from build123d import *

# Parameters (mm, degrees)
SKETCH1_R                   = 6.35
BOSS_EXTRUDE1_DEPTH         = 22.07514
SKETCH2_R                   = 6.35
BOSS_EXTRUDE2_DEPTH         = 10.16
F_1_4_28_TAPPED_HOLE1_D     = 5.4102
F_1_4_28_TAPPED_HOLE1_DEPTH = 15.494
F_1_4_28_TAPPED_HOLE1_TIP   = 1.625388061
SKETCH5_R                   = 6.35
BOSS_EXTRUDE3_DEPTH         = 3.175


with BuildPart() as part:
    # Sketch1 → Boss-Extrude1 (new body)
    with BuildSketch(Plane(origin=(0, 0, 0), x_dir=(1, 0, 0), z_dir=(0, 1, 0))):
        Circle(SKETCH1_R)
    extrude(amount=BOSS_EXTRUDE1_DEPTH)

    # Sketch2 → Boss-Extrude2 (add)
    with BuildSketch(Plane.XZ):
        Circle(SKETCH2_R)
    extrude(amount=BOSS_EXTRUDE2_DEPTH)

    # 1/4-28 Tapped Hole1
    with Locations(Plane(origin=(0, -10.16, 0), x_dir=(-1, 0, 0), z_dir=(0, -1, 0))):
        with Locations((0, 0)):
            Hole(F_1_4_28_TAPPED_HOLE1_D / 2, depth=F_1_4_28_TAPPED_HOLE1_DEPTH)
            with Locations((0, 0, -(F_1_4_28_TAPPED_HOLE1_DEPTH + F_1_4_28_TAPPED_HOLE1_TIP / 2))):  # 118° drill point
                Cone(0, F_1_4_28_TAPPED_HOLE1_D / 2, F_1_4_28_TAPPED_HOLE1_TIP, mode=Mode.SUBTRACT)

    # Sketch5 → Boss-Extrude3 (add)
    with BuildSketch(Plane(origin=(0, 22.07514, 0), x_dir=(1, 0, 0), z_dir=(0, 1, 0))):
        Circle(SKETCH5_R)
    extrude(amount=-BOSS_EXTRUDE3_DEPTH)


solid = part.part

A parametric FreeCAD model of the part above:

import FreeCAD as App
import Part
import Sketcher

V = App.Vector
Q = App.Units.Quantity

doc = App.newDocument("Part")
body = doc.addObject("PartDesign::Body", "Body")

# Sketch on XZ plane
sketch1 = body.newObject("Sketcher::SketchObject", "Sketch")
sketch1.AttachmentSupport = (doc.getObject("XZ_Plane"), [""])
sketch1.MapMode = "FlatFace"
sketch1.addGeometry(Part.Circle(V(0, 0, 0), V(0, 0, 1), 6), False)
sketch1.addConstraint([
    Sketcher.Constraint("Coincident", 0, 3, -1, 1),
    Sketcher.Constraint("Diameter", 0, Q("0.5 in")),
])
pad1 = body.newObject("PartDesign::Pad", "Pad")
pad1.Profile = sketch1
pad1.Length = Q("0.8691 in")
pad1.Reversed = True

# Sketch on XZ plane
sketch2 = body.newObject("Sketcher::SketchObject", "Sketch001")
sketch2.AttachmentSupport = (doc.getObject("XZ_Plane"), [""])
sketch2.MapMode = "FlatFace"
sketch2.addGeometry(Part.Circle(V(0, 0, 0), V(0, 0, 1), 6), False)
sketch2.addConstraint([
    Sketcher.Constraint("Coincident", 0, 3, -1, 1),
    Sketcher.Constraint("Diameter", 0, Q("0.5 in")),
])
pad2 = body.newObject("PartDesign::Pad", "Pad001")
pad2.Profile = sketch2
pad2.Length = Q("0.4 in")

# Sketch on XZ plane
sketch3 = body.newObject("Sketcher::SketchObject", "Sketch002")
sketch3.AttachmentSupport = (doc.getObject("XZ_Plane"), [""])
sketch3.MapMode = "FlatFace"
sketch3.AttachmentOffset = App.Placement(V(0, 0, 0.4 * 25.4), App.Rotation())
sketch3.addGeometry(Part.Circle(V(0, 0, 0), V(0, 0, 1), 2.7), False)
sketch3.addConstraint([
    Sketcher.Constraint("Coincident", 0, 3, -1, 1),
    Sketcher.Constraint("Diameter", 0, Q("0.213 in")),
])
doc.recompute()
hole = body.newObject("PartDesign::Hole", "Hole")
hole.Profile = sketch3
hole.ThreadType = "None"
hole.Diameter = Q("0.213 in")
hole.DepthType = "Dimension"
hole.Depth = Q("0.61 in")
hole.DrillPoint = "Angled"
hole.DrillPointAngle = 118

# Sketch on XZ plane
sketch4 = body.newObject("Sketcher::SketchObject", "Sketch003")
sketch4.AttachmentSupport = (doc.getObject("XZ_Plane"), [""])
sketch4.MapMode = "FlatFace"
sketch4.AttachmentOffset = App.Placement(V(0, 0, -0.8691 * 25.4), App.Rotation())
sketch4.addGeometry(Part.Circle(V(0, 0, 0), V(0, 0, 1), 6), False)
sketch4.addConstraint([
    Sketcher.Constraint("Coincident", 0, 3, -1, 1),
    Sketcher.Constraint("Diameter", 0, Q("0.5 in")),
])
pad3 = body.newObject("PartDesign::Pad", "Pad002")
pad3.Profile = sketch4
pad3.Length = Q("0.125 in")

doc.recompute()
